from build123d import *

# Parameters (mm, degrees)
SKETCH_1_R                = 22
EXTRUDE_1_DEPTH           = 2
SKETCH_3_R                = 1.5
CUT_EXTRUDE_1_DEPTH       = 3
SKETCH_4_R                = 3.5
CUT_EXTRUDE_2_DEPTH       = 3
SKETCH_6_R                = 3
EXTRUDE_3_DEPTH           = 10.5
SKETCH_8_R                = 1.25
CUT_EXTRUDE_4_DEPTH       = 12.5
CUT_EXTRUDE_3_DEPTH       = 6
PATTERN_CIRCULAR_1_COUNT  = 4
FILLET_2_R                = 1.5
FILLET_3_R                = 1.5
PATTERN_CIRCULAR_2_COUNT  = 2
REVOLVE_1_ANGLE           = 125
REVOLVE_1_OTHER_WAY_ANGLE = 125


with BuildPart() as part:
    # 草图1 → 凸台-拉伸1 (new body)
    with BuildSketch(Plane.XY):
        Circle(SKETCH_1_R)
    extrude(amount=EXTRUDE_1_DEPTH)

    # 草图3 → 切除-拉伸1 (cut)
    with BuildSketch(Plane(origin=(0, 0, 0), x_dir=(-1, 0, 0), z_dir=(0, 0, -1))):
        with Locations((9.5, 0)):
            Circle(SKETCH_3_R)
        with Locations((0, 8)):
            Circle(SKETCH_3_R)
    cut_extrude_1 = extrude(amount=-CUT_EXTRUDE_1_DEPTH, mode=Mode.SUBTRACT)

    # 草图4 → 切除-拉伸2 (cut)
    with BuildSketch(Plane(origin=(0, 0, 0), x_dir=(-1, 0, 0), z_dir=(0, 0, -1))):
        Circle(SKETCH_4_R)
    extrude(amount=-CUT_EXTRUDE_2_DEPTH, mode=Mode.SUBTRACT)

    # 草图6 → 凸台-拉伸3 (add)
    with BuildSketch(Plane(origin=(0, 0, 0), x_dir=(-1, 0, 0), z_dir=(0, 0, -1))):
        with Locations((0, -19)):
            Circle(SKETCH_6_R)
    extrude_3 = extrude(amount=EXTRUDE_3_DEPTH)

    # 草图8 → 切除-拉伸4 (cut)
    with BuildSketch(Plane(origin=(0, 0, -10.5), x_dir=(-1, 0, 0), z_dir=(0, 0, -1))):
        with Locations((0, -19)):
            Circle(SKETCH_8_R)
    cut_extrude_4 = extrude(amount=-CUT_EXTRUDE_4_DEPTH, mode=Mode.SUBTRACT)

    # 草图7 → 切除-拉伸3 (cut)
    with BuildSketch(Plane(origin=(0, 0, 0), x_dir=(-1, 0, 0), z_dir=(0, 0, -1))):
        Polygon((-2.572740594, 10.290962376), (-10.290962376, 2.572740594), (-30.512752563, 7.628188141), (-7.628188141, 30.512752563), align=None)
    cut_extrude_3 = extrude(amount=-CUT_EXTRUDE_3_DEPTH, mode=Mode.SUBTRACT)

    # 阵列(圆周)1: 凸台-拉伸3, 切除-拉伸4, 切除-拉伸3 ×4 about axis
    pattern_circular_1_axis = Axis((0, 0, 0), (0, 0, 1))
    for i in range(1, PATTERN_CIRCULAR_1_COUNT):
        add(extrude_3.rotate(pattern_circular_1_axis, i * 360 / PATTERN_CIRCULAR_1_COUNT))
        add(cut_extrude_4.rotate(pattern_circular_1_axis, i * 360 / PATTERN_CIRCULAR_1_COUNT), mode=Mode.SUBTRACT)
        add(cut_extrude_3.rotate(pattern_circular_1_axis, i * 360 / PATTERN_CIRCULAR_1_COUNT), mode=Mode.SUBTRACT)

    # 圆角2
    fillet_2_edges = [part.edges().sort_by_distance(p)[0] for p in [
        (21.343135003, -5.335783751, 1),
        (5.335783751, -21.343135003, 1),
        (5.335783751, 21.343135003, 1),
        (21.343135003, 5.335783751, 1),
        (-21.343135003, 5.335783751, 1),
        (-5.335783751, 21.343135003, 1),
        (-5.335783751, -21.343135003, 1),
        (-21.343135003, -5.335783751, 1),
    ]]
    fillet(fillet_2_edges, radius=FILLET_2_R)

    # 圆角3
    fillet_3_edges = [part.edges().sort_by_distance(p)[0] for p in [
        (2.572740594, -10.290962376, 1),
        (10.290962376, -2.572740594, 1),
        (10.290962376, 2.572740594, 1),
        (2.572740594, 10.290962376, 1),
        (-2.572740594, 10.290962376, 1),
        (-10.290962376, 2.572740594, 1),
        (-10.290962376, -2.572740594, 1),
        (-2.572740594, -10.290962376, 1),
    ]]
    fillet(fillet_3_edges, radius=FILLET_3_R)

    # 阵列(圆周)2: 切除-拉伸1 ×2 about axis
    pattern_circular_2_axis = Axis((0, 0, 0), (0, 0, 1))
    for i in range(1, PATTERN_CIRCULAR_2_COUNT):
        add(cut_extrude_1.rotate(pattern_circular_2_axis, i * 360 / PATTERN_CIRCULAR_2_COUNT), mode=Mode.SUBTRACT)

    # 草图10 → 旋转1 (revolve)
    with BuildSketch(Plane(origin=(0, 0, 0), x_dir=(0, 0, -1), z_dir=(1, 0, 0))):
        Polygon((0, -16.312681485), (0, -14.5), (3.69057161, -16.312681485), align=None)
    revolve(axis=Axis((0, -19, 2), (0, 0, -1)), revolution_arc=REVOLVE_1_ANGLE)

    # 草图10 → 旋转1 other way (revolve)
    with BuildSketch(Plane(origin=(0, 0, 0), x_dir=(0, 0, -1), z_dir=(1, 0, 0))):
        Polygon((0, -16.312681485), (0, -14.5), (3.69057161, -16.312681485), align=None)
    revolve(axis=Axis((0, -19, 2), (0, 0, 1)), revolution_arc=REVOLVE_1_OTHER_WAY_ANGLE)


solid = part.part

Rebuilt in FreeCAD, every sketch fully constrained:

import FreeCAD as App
import Part
import Sketcher

V = App.Vector
Q = App.Units.Quantity


def edges_at(feature, points):
    """Names of the edges that pass closest to the given points."""
    edges = feature.Shape.Edges
    near = lambda p: min(range(len(edges)), key=lambda i: edges[i].distToShape(Part.Vertex(*p))[0])
    return sorted({f"Edge{near(p) + 1}" for p in points})

doc = App.newDocument("Part")
body = doc.addObject("PartDesign::Body", "Body")

# Sketch on XY plane
sketch1 = body.newObject("Sketcher::SketchObject", "Sketch")
sketch1.AttachmentSupport = (doc.getObject("XY_Plane"), [""])
sketch1.MapMode = "FlatFace"
sketch1.addGeometry(Part.Circle(V(0, 0, 0), V(0, 0, 1), 22), False)
sketch1.addConstraint([
    Sketcher.Constraint("Coincident", 0, 3, -1, 1),
    Sketcher.Constraint("Diameter", 0, 44.0),
])
pad1 = body.newObject("PartDesign::Pad", "Pad")
pad1.Profile = sketch1
pad1.Length = 2

# Sketch on XY plane
sketch2 = body.newObject("Sketcher::SketchObject", "Sketch001")
sketch2.AttachmentSupport = (doc.getObject("XY_Plane"), [""])
sketch2.MapMode = "FlatFace"
sketch2.addGeometry([
    Part.Circle(V(-9.5, 0, 0), V(0, 0, 1), 1.5),
    Part.Circle(V(0, 8, 0), V(0, 0, 1), 1.5),
], False)
sketch2.addConstraint([
    Sketcher.Constraint("Equal", 0, 1),
    Sketcher.Constraint("PointOnObject", 0, 3, -1),
    Sketcher.Constraint("PointOnObject", 1, 3, -2),
    Sketcher.Constraint("Diameter", 0, 3.0),
    Sketcher.Constraint("DistanceY", -1, 1, 1, 3, 8.0),
    Sketcher.Constraint("DistanceX", 0, 3, -1, 1, 9.5),
])
pocket1 = body.newObject("PartDesign::Pocket", "Pocket")
pocket1.Profile = sketch2
pocket1.Length = 3
pocket1.Reversed = True

# Sketch on XY plane
sketch3 = body.newObject("Sketcher::SketchObject", "Sketch002")
sketch3.AttachmentSupport = (doc.getObject("XY_Plane"), [""])
sketch3.MapMode = "FlatFace"
sketch3.addGeometry(Part.Circle(V(0, 0, 0), V(0, 0, 1), 3.5), False)
sketch3.addConstraint([
    Sketcher.Constraint("Coincident", 0, 3, -1, 1),
    Sketcher.Constraint("Diameter", 0, 7.0),
])
pocket2 = body.newObject("PartDesign::Pocket", "Pocket001")
pocket2.Profile = sketch3
pocket2.Length = 3
pocket2.Reversed = True

# Sketch on XY plane
sketch4 = body.newObject("Sketcher::SketchObject", "Sketch003")
sketch4.AttachmentSupport = (doc.getObject("XY_Plane"), [""])
sketch4.MapMode = "FlatFace"
sketch4.addGeometry(Part.Circle(V(0, -19, 0), V(0, 0, 1), 3), False)
sketch4.addConstraint([
    Sketcher.Constraint("PointOnObject", 0, 3, -2),
    Sketcher.Constraint("Diameter", 0, 6.0),
    Sketcher.Constraint("DistanceY", 0, 3, -1, 1, 19.0),
])
pad2 = body.newObject("PartDesign::Pad", "Pad001")
pad2.Profile = sketch4
pad2.Length = 10.5
pad2.Reversed = True

# Sketch on XY plane
sketch5 = body.newObject("Sketcher::SketchObject", "Sketch004")
sketch5.AttachmentSupport = (doc.getObject("XY_Plane"), [""])
sketch5.MapMode = "FlatFace"
sketch5.AttachmentOffset = App.Placement(V(0, 0, -10.5), App.Rotation())
sketch5.addGeometry(Part.Circle(V(0, -19, 0), V(0, 0, 1), 1.2), False)
sketch5.addConstraint([
    Sketcher.Constraint("PointOnObject", 0, 3, -2),
    Sketcher.Constraint("Diameter", 0, 2.5),
    Sketcher.Constraint("DistanceY", 0, 3, -1, 1, 19.0),
])
pocket3 = body.newObject("PartDesign::Pocket", "Pocket002")
pocket3.Profile = sketch5
pocket3.Length = 12.5
pocket3.Reversed = True

# Sketch on XY plane
sketch6 = body.newObject("Sketcher::SketchObject", "Sketch005")
sketch6.AttachmentSupport = (doc.getObject("XY_Plane"), [""])
sketch6.MapMode = "FlatFace"
sketch6.addGeometry([
    Part.LineSegment(V(10, 3, 0), V(3, 10, 0)),
    Part.LineSegment(V(3, 10, 0), V(8, 31, 0)),
    Part.LineSegment(V(8, 31, 0), V(31, 8, 0)),
    Part.LineSegment(V(31, 8, 0), V(10, 3, 0)),
], False)
sketch6.addConstraint([
    Sketcher.Constraint("Coincident", 0, 2, 1, 1),
    Sketcher.Constraint("Coincident", 1, 2, 2, 1),
    Sketcher.Constraint("Coincident", 2, 2, 3, 1),
    Sketcher.Constraint("Coincident", 3, 2, 0, 1),
    Sketcher.Constraint("Parallel", 0, 2),
    Sketcher.Constraint("Equal", 1, 3),
    Sketcher.Constraint("Angle", 0, Q("135 deg")),
    Sketcher.Constraint("Distance", 2, 32.363661),
    Sketcher.Constraint("DistanceX", -1, 1, 0, 2, 2.572741),
    Sketcher.Constraint("DistanceX", -1, 1, 1, 2, 7.628188),
    Sketcher.Constraint("DistanceY", -1, 1, 2, 2, 7.628188),
    Sketcher.Constraint("DistanceY", 0, 2, 1, 2, 20.22179),
])
pocket4 = body.newObject("PartDesign::Pocket", "Pocket003")
pocket4.Profile = sketch6
pocket4.Length = 6
pocket4.Reversed = True
doc.recompute()

polarpattern = body.newObject("PartDesign::PolarPattern", "PolarPattern")
polarpattern.Originals = [pad2, pocket3, pocket4]
polarpattern.Axis = (doc.getObject("Z_Axis"), [""])
polarpattern.Angle = 360
polarpattern.Occurrences = 4
body.Tip = polarpattern
doc.recompute()

fillet = body.newObject("PartDesign::Fillet", "Fillet")
fillet.Base = (polarpattern, edges_at(polarpattern, [
    (21.343, -5.336, 1),
    (5.336, -21.343, 1),
    (5.336, 21.343, 1),
    (21.343, 5.336, 1),
    (-21.343, 5.336, 1),
    (-5.336, 21.343, 1),
    (-5.336, -21.343, 1),
    (-21.343, -5.336, 1),
]))
fillet.Radius = 1.5
doc.recompute()

fillet2 = body.newObject("PartDesign::Fillet", "Fillet001")
fillet2.Base = (fillet, edges_at(fillet, [
    (2.573, -10.291, 1),
    (10.291, -2.573, 1),
    (10.291, 2.573, 1),
    (2.573, 10.291, 1),
    (-2.573, 10.291, 1),
    (-10.291, 2.573, 1),
    (-10.291, -2.573, 1),
    (-2.573, -10.291, 1),
]))
fillet2.Radius = 1.5
doc.recompute()

polarpattern2 = body.newObject("PartDesign::PolarPattern", "PolarPattern001")
polarpattern2.Originals = [pocket1]
polarpattern2.Axis = (doc.getObject("Z_Axis"), [""])
polarpattern2.Angle = 360
polarpattern2.Occurrences = 2
body.Tip = polarpattern2

# Sketch on YZ plane
sketch7 = body.newObject("Sketcher::SketchObject", "Sketch006")
sketch7.AttachmentSupport = (doc.getObject("YZ_Plane"), [""])
sketch7.MapMode = "FlatFace"
sketch7.addGeometry([
    Part.LineSegment(V(-14.5, 0, 0), V(-16.3, 0, 0)),
    Part.LineSegment(V(-16.3, 0, 0), V(-16.3, -3.7, 0)),
    Part.LineSegment(V(-16.3, -3.7, 0), V(-14.5, 0, 0)),
], False)
sketch7.addGeometry(Part.LineSegment(V(-19, 0, 0), V(-19, -3.7, 0)), True)  # axis
sketch7.addConstraint([
    Sketcher.Constraint("Coincident", 0, 2, 1, 1),
    Sketcher.Constraint("Coincident", 1, 2, 2, 1),
    Sketcher.Constraint("Coincident", 2, 2, 0, 1),
    Sketcher.Constraint("Horizontal", 0),
    Sketcher.Constraint("Vertical", 1),
    Sketcher.Constraint("Vertical", 3),
    Sketcher.Constraint("PointOnObject", 0, 2, -1),
    Sketcher.Constraint("PointOnObject", 3, 1, -1),
    Sketcher.Constraint("Horizontal", 1, 2, 3, 2),
    Sketcher.Constraint("DistanceX", 3, 1, -1, 1, 19.0),
    Sketcher.Constraint("DistanceX", 2, 2, -1, 1, 14.5),
    Sketcher.Constraint("DistanceX", 0, 2, 0, 1, 1.812681),
    Sketcher.Constraint("DistanceY", 1, 2, 1, 1, 3.690572),
])
revolution = body.newObject("PartDesign::Revolution", "Revolution")
revolution.Profile = sketch7
revolution.ReferenceAxis = (sketch7, ["Axis0"])
revolution.Angle = 125

# Sketch on YZ plane
sketch8 = body.newObject("Sketcher::SketchObject", "Sketch007")
sketch8.AttachmentSupport = (doc.getObject("YZ_Plane"), [""])
sketch8.MapMode = "FlatFace"
sketch8.addGeometry([
    Part.LineSegment(V(-14.5, 0, 0), V(-16.3, 0, 0)),
    Part.LineSegment(V(-16.3, 0, 0), V(-16.3, -3.7, 0)),
    Part.LineSegment(V(-16.3, -3.7, 0), V(-14.5, 0, 0)),
], False)
sketch8.addGeometry(Part.LineSegment(V(-19, -3.7, 0), V(-19, 0, 0)), True)  # axis
sketch8.addConstraint([
    Sketcher.Constraint("Coincident", 0, 2, 1, 1),
    Sketcher.Constraint("Coincident", 1, 2, 2, 1),
    Sketcher.Constraint("Coincident", 2, 2, 0, 1),
    Sketcher.Constraint("Horizontal", 0),
    Sketcher.Constraint("Vertical", 1),
    Sketcher.Constraint("Vertical", 3),
    Sketcher.Constraint("PointOnObject", 0, 2, -1),
    Sketcher.Constraint("PointOnObject", 3, 2, -1),
    Sketcher.Constraint("Horizontal", 1, 2, 3, 1),
    Sketcher.Constraint("DistanceX", 3, 1, -1, 1, 19.0),
    Sketcher.Constraint("DistanceX", 2, 2, -1, 1, 14.5),
    Sketcher.Constraint("DistanceX", 0, 2, 0, 1, 1.812681),
    Sketcher.Constraint("DistanceY", 1, 2, 1, 1, 3.690572),
])
revolution2 = body.newObject("PartDesign::Revolution", "Revolution001")
revolution2.Profile = sketch8
revolution2.ReferenceAxis = (sketch8, ["Axis0"])
revolution2.Angle = 125

doc.recompute()
